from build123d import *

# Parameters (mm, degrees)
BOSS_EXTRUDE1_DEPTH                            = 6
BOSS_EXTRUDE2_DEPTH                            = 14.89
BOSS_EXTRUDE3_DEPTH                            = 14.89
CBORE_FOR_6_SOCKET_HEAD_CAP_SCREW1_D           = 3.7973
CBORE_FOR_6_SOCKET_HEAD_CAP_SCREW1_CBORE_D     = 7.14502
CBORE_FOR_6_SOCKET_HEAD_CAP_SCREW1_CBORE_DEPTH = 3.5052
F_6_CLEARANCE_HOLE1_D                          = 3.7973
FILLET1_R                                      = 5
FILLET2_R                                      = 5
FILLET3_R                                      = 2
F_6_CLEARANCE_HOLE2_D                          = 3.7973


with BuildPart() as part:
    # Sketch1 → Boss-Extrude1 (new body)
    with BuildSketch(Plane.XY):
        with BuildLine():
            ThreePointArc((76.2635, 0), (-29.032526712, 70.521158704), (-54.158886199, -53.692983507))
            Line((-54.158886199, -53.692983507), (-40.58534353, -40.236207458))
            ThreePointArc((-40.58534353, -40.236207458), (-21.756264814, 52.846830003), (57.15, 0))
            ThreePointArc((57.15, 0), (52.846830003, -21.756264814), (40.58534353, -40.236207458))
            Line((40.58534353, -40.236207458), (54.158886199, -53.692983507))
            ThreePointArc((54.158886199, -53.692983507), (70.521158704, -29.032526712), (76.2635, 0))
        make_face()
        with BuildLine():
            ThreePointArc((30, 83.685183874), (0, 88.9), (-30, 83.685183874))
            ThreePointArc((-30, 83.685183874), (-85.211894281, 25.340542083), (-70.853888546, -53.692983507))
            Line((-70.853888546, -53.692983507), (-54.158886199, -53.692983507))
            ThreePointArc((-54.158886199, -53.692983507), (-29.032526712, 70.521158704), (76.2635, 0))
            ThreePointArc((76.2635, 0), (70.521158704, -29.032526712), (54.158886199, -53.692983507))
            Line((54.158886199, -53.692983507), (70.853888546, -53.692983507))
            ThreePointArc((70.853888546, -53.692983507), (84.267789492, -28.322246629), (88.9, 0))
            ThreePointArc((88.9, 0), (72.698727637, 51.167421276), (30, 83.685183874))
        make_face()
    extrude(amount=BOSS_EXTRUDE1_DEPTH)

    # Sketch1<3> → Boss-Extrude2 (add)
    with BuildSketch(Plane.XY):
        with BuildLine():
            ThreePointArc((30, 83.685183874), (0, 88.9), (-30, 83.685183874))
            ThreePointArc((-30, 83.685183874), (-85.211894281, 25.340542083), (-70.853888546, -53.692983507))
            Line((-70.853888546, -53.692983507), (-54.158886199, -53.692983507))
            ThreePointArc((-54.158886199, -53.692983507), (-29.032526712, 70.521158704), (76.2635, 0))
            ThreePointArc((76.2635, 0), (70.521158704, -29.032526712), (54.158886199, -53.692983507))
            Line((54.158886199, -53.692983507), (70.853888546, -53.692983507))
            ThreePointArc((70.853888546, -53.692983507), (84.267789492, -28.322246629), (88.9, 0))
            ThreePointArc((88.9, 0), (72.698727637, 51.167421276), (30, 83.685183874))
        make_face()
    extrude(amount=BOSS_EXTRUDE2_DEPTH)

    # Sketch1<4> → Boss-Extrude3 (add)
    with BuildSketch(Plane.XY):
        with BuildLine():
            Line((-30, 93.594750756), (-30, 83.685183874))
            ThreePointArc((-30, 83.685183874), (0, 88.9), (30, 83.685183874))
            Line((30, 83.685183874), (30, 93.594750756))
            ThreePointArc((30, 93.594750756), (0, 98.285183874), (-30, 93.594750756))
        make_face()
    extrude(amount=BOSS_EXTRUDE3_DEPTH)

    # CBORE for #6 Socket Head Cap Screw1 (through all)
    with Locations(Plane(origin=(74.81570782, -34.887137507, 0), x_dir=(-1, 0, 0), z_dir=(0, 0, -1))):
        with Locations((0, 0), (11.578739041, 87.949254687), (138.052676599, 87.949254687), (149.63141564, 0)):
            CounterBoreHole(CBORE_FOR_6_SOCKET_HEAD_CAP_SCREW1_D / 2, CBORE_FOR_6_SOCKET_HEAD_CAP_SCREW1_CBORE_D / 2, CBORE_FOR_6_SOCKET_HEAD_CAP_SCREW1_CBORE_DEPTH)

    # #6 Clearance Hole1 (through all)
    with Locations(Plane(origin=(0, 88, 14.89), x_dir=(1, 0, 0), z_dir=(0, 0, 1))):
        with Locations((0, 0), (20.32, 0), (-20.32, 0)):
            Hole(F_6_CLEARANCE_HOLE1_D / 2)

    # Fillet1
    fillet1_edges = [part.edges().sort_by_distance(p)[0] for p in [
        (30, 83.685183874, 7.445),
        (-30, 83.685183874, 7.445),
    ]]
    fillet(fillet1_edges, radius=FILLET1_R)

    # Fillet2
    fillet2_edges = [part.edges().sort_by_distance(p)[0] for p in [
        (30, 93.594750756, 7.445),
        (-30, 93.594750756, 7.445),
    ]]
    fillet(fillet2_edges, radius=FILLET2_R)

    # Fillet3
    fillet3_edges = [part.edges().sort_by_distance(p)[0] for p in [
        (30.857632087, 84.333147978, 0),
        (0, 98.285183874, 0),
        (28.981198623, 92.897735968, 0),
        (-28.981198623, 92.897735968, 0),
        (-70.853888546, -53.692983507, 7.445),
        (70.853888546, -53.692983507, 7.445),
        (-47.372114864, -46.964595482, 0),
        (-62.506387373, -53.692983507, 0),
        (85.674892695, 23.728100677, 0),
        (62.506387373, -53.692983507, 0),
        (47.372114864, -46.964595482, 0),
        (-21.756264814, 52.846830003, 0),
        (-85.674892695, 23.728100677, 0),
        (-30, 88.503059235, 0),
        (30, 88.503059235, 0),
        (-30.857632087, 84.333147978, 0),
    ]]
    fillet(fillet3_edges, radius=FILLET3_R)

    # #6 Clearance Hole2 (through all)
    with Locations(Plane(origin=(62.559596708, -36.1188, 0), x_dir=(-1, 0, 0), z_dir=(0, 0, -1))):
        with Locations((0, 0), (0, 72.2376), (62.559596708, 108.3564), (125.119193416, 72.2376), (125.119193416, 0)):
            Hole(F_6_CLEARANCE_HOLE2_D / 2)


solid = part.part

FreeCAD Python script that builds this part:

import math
import FreeCAD as App
import Part
import Sketcher

V = App.Vector


def edges_at(feature, points):
    """Names of the edges that pass closest to the given points."""
    edges = feature.Shape.Edges
    near = lambda p: min(range(len(edges)), key=lambda i: edges[i].distToShape(Part.Vertex(*p))[0])
    return sorted({f"Edge{near(p) + 1}" for p in points})

doc = App.newDocument("Part")
body = doc.addObject("PartDesign::Body", "Body")

sketch1 = doc.addObject("Sketcher::SketchObject", "Sketch")
body.addObject(sketch1)
sketch1.AttachmentSupport = (doc.XY_Plane, [""])
sketch1.MapMode = "FlatFace"
sketch1.addGeometry([
    Part.LineSegment(V(-54, -54, 0), V(-41, -40, 0)),
    Part.ArcOfCircle(Part.Circle(V(0, 0, 0), V(0, 0, 1), 57), math.radians(0), math.radians(225)),
    Part.ArcOfCircle(Part.Circle(V(0, 0, 0), V(0, 0, 1), 57), math.radians(-45), math.radians(0)),
    Part.LineSegment(V(41, -40, 0), V(54, -54, 0)),
    Part.LineSegment(V(54, -54, 0), V(71, -54, 0)),
    Part.ArcOfCircle(Part.Circle(V(0, 0, 0), V(0, 0, 1), 89), math.radians(-37), math.radians(0)),
    Part.ArcOfCircle(Part.Circle(V(0, 0, 0), V(0, 0, 1), 89), math.radians(0), math.radians(70)),
    Part.ArcOfCircle(Part.Circle(V(0, 0, 0), V(0, 0, 1), 89), math.radians(70), math.radians(110)),
    Part.ArcOfCircle(Part.Circle(V(0, 0, 0), V(0, 0, 1), 89), math.radians(110), math.radians(217)),
    Part.LineSegment(V(-71, -54, 0), V(-54, -54, 0)),
], False)
sketch1.addConstraint([
    Sketcher.Constraint("Coincident", 0, 2, 1, 2),
    Sketcher.Constraint("Tangent", 1, 1, 2, 2),
    Sketcher.Constraint("Coincident", 2, 1, 3, 1),
    Sketcher.Constraint("Coincident", 3, 2, 4, 1),
    Sketcher.Constraint("Coincident", 4, 2, 5, 1),
    Sketcher.Constraint("Tangent", 5, 2, 6, 1),
    Sketcher.Constraint("Tangent", 6, 2, 7, 1),
    Sketcher.Constraint("Tangent", 7, 2, 8, 1),
    Sketcher.Constraint("Coincident", 8, 2, 9, 1),
    Sketcher.Constraint("Coincident", 9, 2, 0, 1),
    Sketcher.Constraint("Horizontal", 4),
    Sketcher.Constraint("Horizontal", 9),
    Sketcher.Constraint("Coincident", 1, 3, -1, 1),
    Sketcher.Constraint("Coincident", 5, 3, -1, 1),
    Sketcher.Constraint("Coincident", 7, 3, -1, 1),
    Sketcher.Constraint("Equal", 1, 2),
    Sketcher.Constraint("Equal", 7, 8),
    Sketcher.Constraint("Symmetric", 3, 2, 9, 2, -2),
    Sketcher.Constraint("PointOnObject", 1, 1, -1),
    Sketcher.Constraint("PointOnObject", 5, 2, -1),
    Sketcher.Constraint("Horizontal", 0, 2, 2, 1),
    Sketcher.Constraint("Horizontal", 6, 2, 7, 2),
    Sketcher.Constraint("Radius", 5, 88.9),
    Sketcher.Constraint("Radius", 1, 57.15),
    Sketcher.Constraint("DistanceX", -1, 1, 6, 2, 30.0),
    Sketcher.Constraint("Distance", 0, 19.1135),
    Sketcher.Constraint("DistanceX", 4, 1, 4, 2, 16.695002),
    Sketcher.Constraint("DistanceX", 0, 2, -1, 1, 40.585344),
])
pad1 = doc.addObject("PartDesign::Pad", "Pad")
body.addObject(pad1)
pad1.Profile = sketch1
pad1.Length = 6

sketch2 = doc.addObject("Sketcher::SketchObject", "Sketch001")
body.addObject(sketch2)
sketch2.AttachmentSupport = (doc.XY_Plane, [""])
sketch2.MapMode = "FlatFace"
sketch2.addGeometry([
    Part.ArcOfCircle(Part.Circle(V(0, 0, 0), V(0, 0, 1), 89), math.radians(70), math.radians(110)),
    Part.ArcOfCircle(Part.Circle(V(0, 0, 0), V(0, 0, 1), 89), math.radians(110), math.radians(217)),
    Part.LineSegment(V(-71, -54, 0), V(-54, -54, 0)),
    Part.ArcOfCircle(Part.Circle(V(0, 0, 0), V(0, 0, 1), 76), math.radians(0), math.radians(225)),
    Part.ArcOfCircle(Part.Circle(V(0, 0, 0), V(0, 0, 1), 76), math.radians(-45), math.radians(0)),
    Part.LineSegment(V(54, -54, 0), V(71, -54, 0)),
    Part.ArcOfCircle(Part.Circle(V(0, 0, 0), V(0, 0, 1), 89), math.radians(-37), math.radians(0)),
    Part.ArcOfCircle(Part.Circle(V(0, 0, 0), V(0, 0, 1), 89), math.radians(0), math.radians(70)),
], False)
sketch2.addConstraint([
    Sketcher.Constraint("Tangent", 0, 2, 1, 1),
    Sketcher.Constraint("Coincident", 1, 2, 2, 1),
    Sketcher.Constraint("Coincident", 2, 2, 3, 2),
    Sketcher.Constraint("Tangent", 3, 1, 4, 2),
    Sketcher.Constraint("Coincident", 4, 1, 5, 1),
    Sketcher.Constraint("Coincident", 5, 2, 6, 1),
    Sketcher.Constraint("Tangent", 6, 2, 7, 1),
    Sketcher.Constraint("Tangent", 7, 2, 0, 1),
    Sketcher.Constraint("Horizontal", 2),
    Sketcher.Constraint("Horizontal", 5),
    Sketcher.Constraint("Coincident", 0, 3, -1, 1),
    Sketcher.Constraint("Coincident", 3, 3, -1, 1),
    Sketcher.Constraint("Coincident", 6, 3, -1, 1),
    Sketcher.Constraint("Equal", 0, 1),
    Sketcher.Constraint("Equal", 3, 4),
    Sketcher.Constraint("PointOnObject", 3, 1, -1),
    Sketcher.Constraint("PointOnObject", 6, 2, -1),
    Sketcher.Constraint("Horizontal", 2, 2, 4, 1),
    Sketcher.Constraint("Horizontal", 0, 2, 7, 2),
    Sketcher.Constraint("Radius", 0, 88.9),
    Sketcher.Constraint("DistanceX", 0, 2, -1, 1, 30.0),
    Sketcher.Constraint("Radius", 3, 76.2635),
    Sketcher.Constraint("DistanceX", 2, 1, 2, 2, 16.695002),
])
pad2 = doc.addObject("PartDesign::Pad", "Pad001")
body.addObject(pad2)
pad2.Profile = sketch2
pad2.Length = 14.89

sketch3 = doc.addObject("Sketcher::SketchObject", "Sketch002")
body.addObject(sketch3)
sketch3.AttachmentSupport = (doc.XY_Plane, [""])
sketch3.MapMode = "FlatFace"
sketch3.addGeometry([
    Part.LineSegment(V(-30, 94, 0), V(-30, 84, 0)),
    Part.ArcOfCircle(Part.Circle(V(0, 0, 0), V(0, 0, 1), 89), math.radians(70), math.radians(110)),
    Part.LineSegment(V(30, 84, 0), V(30, 94, 0)),
    Part.ArcOfCircle(Part.Circle(V(0, 0, 0), V(0, 0, 1), 98), math.radians(72), math.radians(108)),
], False)
sketch3.addConstraint([
    Sketcher.Constraint("Coincident", 0, 2, 1, 2),
    Sketcher.Constraint("Coincident", 1, 1, 2, 1),
    Sketcher.Constraint("Coincident", 2, 2, 3, 1),
    Sketcher.Constraint("Coincident", 3, 2, 0, 1),
    Sketcher.Constraint("Vertical", 0),
    Sketcher.Constraint("Vertical", 2),
    Sketcher.Constraint("Coincident", 1, 3, -1, 1),
    Sketcher.Constraint("Coincident", 3, 3, -1, 1),
    Sketcher.Constraint("Horizontal", 0, 2, 1, 1),
    Sketcher.Constraint("Radius", 1, 88.9),
    Sketcher.Constraint("DistanceX", 0, 2, -1, 1, 30.0),
    Sketcher.Constraint("Radius", 3, 98.285184),
])
pad3 = doc.addObject("PartDesign::Pad", "Pad002")
body.addObject(pad3)
pad3.Profile = sketch3
pad3.Length = 14.89

sketch4 = doc.addObject("Sketcher::SketchObject", "Sketch003")
body.addObject(sketch4)
sketch4.AttachmentSupport = (doc.XY_Plane, [""])
sketch4.MapMode = "FlatFace"
sketch4.addGeometry([
    Part.Circle(V(74.8, -34.9, 0), V(0, 0, 1), 1.9),
    Part.Circle(V(63.2, 53.1, 0), V(0, 0, 1), 1.9),
    Part.Circle(V(-63.2, 53.1, 0), V(0, 0, 1), 1.9),
    Part.Circle(V(-74.8, -34.9, 0), V(0, 0, 1), 1.9),
], False)
sketch4.addConstraint([
    Sketcher.Constraint("Equal", 0, 1),
    Sketcher.Constraint("Equal", 1, 2),
    Sketcher.Constraint("Equal", 2, 3),
    Sketcher.Constraint("Symmetric", 1, 3, 2, 3, -2),
    Sketcher.Constraint("Symmetric", 0, 3, 3, 3, -2),
    Sketcher.Constraint("Diameter", 0, 3.7973),
    Sketcher.Constraint("DistanceX", -1, 1, 1, 3, 63.236969),
    Sketcher.Constraint("DistanceX", 1, 3, 0, 3, 11.578739),
    Sketcher.Constraint("DistanceY", 0, 3, -1, 1, 34.887138),
    Sketcher.Constraint("DistanceY", -1, 1, 1, 3, 53.062117),
])
doc.recompute()
hole = doc.addObject("PartDesign::Hole", "Hole")
body.addObject(hole)
hole.Profile = sketch4
hole.ThreadType = "None"
hole.Diameter = 3.7973
hole.DepthType = "ThroughAll"
hole.HoleCutType = "Counterbore"
hole.HoleCutDiameter = 7.14502
hole.HoleCutDepth = 3.5052
hole.Reversed = True

sketch5 = doc.addObject("Sketcher::SketchObject", "Sketch004")
body.addObject(sketch5)
sketch5.AttachmentSupport = (doc.XY_Plane, [""])
sketch5.MapMode = "FlatFace"
sketch5.AttachmentOffset = App.Placement(V(0, 0, 14.89), App.Rotation())
sketch5.addGeometry([
    Part.Circle(V(0, 88, 0), V(0, 0, 1), 1.9),
    Part.Circle(V(20.3, 88, 0), V(0, 0, 1), 1.9),
    Part.Circle(V(-20.3, 88, 0), V(0, 0, 1), 1.9),
], False)
sketch5.addConstraint([
    Sketcher.Constraint("Equal", 0, 1),
    Sketcher.Constraint("Equal", 1, 2),
    Sketcher.Constraint("Symmetric", 1, 3, 2, 3, -2),
    Sketcher.Constraint("PointOnObject", 0, 3, -2),
    Sketcher.Constraint("Horizontal", 0, 3, 1, 3),
    Sketcher.Constraint("DistanceY", -1, 1, 0, 3, 88.0),
    Sketcher.Constraint("Diameter", 0, 3.7973),
    Sketcher.Constraint("DistanceX", -1, 1, 1, 3, 20.32),
])
doc.recompute()
hole2 = doc.addObject("PartDesign::Hole", "Hole001")
body.addObject(hole2)
hole2.Profile = sketch5
hole2.ThreadType = "None"
hole2.Diameter = 3.7973
hole2.DepthType = "ThroughAll"
doc.recompute()

fillet = doc.addObject("PartDesign::Fillet", "Fillet")
body.addObject(fillet)
fillet.Base = (hole2, edges_at(hole2, [(30, 83.685, 7.445), (-30, 83.685, 7.445)]))
fillet.Radius = 5
doc.recompute()

fillet2 = doc.addObject("PartDesign::Fillet", "Fillet001")
body.addObject(fillet2)
fillet2.Base = (fillet, edges_at(fillet, [(30, 93.595, 7.445), (-30, 93.595, 7.445)]))
fillet2.Radius = 5
doc.recompute()

fillet3 = doc.addObject("PartDesign::Fillet", "Fillet002")
body.addObject(fillet3)
fillet3.Base = (fillet2, edges_at(fillet2, [
    (30.858, 84.333, 0),
    (0, 98.285, 0),
    (28.981, 92.898, 0),
    (-28.981, 92.898, 0),
    (-70.854, -53.693, 7.445),
    (70.854, -53.693, 7.445),
    (-47.372, -46.965, 0),
    (-62.506, -53.693, 0),
    (73.651, 49.787, 0),
    (62.506, -53.693, 0),
    (47.372, -46.965, 0),
    (-21.756, 52.847, 0),
    (-85.675, 23.728, 0),
    (-30, 88.503, 0),
    (30, 88.503, 0),
    (-30.858, 84.333, 0),
]))
fillet3.Radius = 2

sketch6 = doc.addObject("Sketcher::SketchObject", "Sketch005")
body.addObject(sketch6)
sketch6.AttachmentSupport = (doc.XY_Plane, [""])
sketch6.MapMode = "FlatFace"
sketch6.addGeometry([
    Part.Circle(V(62.6, -36.1, 0), V(0, 0, 1), 1.9),
    Part.Circle(V(62.6, 36.1, 0), V(0, 0, 1), 1.9),
    Part.Circle(V(0, 72.2, 0), V(0, 0, 1), 1.9),
    Part.Circle(V(-62.6, 36.1, 0), V(0, 0, 1), 1.9),
    Part.Circle(V(-62.6, -36.1, 0), V(0, 0, 1), 1.9),
], False)
sketch6.addConstraint([
    Sketcher.Constraint("Equal", 0, 1),
    Sketcher.Constraint("Equal", 1, 2),
    Sketcher.Constraint("Equal", 2, 3),
    Sketcher.Constraint("Equal", 3, 4),
    Sketcher.Constraint("Symmetric", 0, 3, 3, 3, -1, 1),
    Sketcher.Constraint("Symmetric", 1, 3, 4, 3, -1, 1),
    Sketcher.Constraint("Symmetric", 1, 3, 3, 3, -2),
    Sketcher.Constraint("PointOnObject", 2, 3, -2),
    Sketcher.Constraint("Diameter", 0, 3.7973),
    Sketcher.Constraint("DistanceY", 0, 3, -1, 1, 36.1188),
    Sketcher.Constraint("DistanceY", -1, 1, 2, 3, 72.2376),
    Sketcher.Constraint("DistanceX", -1, 1, 0, 3, 62.559597),
])
doc.recompute()
hole3 = doc.addObject("PartDesign::Hole", "Hole002")
body.addObject(hole3)
hole3.Profile = sketch6
hole3.ThreadType = "None"
hole3.Diameter = 3.7973
hole3.DepthType = "ThroughAll"
hole3.Reversed = True

doc.recompute()
